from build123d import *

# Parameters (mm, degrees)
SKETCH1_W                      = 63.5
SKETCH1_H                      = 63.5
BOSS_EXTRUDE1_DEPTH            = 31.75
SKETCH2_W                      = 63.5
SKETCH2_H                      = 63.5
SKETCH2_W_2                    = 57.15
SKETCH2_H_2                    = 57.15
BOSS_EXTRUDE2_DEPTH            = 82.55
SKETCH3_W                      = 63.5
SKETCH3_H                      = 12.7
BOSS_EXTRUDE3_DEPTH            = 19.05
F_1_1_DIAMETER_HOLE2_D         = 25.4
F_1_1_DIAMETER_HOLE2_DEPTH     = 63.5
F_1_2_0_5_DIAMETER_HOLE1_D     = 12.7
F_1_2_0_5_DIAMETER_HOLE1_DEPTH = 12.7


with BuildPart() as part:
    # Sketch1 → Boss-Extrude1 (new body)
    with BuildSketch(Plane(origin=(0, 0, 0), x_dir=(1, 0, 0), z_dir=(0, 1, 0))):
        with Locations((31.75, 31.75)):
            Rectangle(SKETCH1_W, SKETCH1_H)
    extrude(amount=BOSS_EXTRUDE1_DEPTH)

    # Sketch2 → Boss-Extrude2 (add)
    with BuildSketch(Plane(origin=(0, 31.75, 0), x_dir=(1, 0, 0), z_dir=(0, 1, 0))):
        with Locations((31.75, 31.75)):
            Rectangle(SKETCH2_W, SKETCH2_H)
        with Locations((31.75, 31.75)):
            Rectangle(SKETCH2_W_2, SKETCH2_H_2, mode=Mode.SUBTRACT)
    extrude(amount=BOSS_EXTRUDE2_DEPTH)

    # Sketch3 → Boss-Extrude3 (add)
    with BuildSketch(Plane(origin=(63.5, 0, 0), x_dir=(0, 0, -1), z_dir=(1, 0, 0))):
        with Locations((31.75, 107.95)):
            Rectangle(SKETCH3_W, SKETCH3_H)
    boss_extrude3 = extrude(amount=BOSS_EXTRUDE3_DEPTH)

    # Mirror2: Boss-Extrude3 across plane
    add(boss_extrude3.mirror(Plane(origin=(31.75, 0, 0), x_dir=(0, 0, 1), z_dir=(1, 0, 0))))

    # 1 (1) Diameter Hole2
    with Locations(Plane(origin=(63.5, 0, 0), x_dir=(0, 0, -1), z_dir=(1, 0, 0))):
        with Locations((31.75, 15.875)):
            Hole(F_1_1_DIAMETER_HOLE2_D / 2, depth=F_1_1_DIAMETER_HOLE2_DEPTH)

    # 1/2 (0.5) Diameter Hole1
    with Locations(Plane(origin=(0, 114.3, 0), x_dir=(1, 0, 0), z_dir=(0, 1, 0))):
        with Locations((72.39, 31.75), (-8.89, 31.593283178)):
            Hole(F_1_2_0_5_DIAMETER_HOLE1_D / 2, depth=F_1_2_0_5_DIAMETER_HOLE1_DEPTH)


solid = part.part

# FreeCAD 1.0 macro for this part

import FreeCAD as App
import Part
import Sketcher
Q = App.Units.Quantity


def add_polygon(sketch, points):
    """Adds a closed chain of lines whose ends are joined by coincident constraints."""
    first, n = sketch.GeometryCount, len(points)
    for a, b in zip(points, points[1:] + points[:1]):
        sketch.addGeometry(Part.LineSegment(App.Vector(*a, 0), App.Vector(*b, 0)), False)
    for i in range(n):
        sketch.addConstraint(Sketcher.Constraint("Coincident", first + i, 2, first + (i + 1) % n, 1))

doc = App.newDocument("Part")
params = doc.addObject("Spreadsheet::Sheet", "Params")
for row, (alias, value) in enumerate([
    ("sketch1_width", "2.5 in"),
    ("pad1_length", "1.25 in"),
    ("sketch2_width", "2.5 in"),
    ("sketch2_width2", "2.25 in"),
    ("pad2_length", "3.25 in"),
    ("sketch3_width", "0.5 in"),
    ("sketch3_height", "2.5 in"),
    ("pad3_length", "0.75 in"),
    ("sketch4_diameter", "1 in"),
    ("hole_diameter", "1 in"),
    ("hole_depth", "2.5 in"),
    ("sketch5_diameter", "0.5 in"),
    ("hole2_diameter", "0.5 in"),
    ("hole2_depth", "0.5 in"),
], start=1):
    params.set(f"A{row}", alias)
    params.set(f"B{row}", "=" + value)
    params.setAlias(f"B{row}", alias)

body = doc.addObject("PartDesign::Body", "Body")

sketch1 = doc.addObject("Sketcher::SketchObject", "Sketch")
body.addObject(sketch1)
sketch1.AttachmentSupport = (doc.XZ_Plane, [""])
sketch1.MapMode = "FlatFace"
add_polygon(sketch1, [(0, -64), (0, 0), (64, 0), (64, -64)])
sketch1.addConstraint([
    Sketcher.Constraint("Vertical", 0),
    Sketcher.Constraint("Horizontal", 1),
    Sketcher.Constraint("Vertical", 2),
    Sketcher.Constraint("Horizontal", 3),
    Sketcher.Constraint("Coincident", 0, 2, -1, 1),
    Sketcher.Constraint("Equal", 3, 0),
    Sketcher.Constraint("DistanceX", 1, 1, 1, 2, Q("2.5 in")),
])
sketch1.setExpression("Constraints[10]", "Params.sketch1_width")
pad1 = doc.addObject("PartDesign::Pad", "Pad")
body.addObject(pad1)
pad1.Profile = sketch1
pad1.setExpression("Length", "Params.pad1_length")
pad1.Reversed = True

sketch2 = doc.addObject("Sketcher::SketchObject", "Sketch001")
body.addObject(sketch2)
sketch2.AttachmentSupport = (doc.XZ_Plane, [""])
sketch2.MapMode = "FlatFace"
sketch2.AttachmentOffset = App.Placement(App.Vector(0, 0, -1.25 * 25.4), App.Rotation())
add_polygon(sketch2, [(0, -64), (0, 0), (64, 0), (64, -64)])
add_polygon(sketch2, [(60, -3), (3, -3), (3, -60), (60, -60)])
sketch2.addConstraint([
    Sketcher.Constraint("Vertical", 0),
    Sketcher.Constraint("Horizontal", 1),
    Sketcher.Constraint("Vertical", 2),
    Sketcher.Constraint("Horizontal", 3),
    Sketcher.Constraint("Horizontal", 4),
    Sketcher.Constraint("Vertical", 5),
    Sketcher.Constraint("Horizontal", 6),
    Sketcher.Constraint("Vertical", 7),
    Sketcher.Constraint("Coincident", 0, 2, -1, 1),
    Sketcher.Constraint("Equal", 3, 0),
    Sketcher.Constraint("Equal", 6, 5),
    Sketcher.Constraint("DistanceX", 1, 1, 1, 2, Q("2.5 in")),
    Sketcher.Constraint("DistanceX", 4, 2, 4, 1, Q("2.25 in")),
    Sketcher.Constraint("DistanceX", -1, 1, 4, 2, Q("0.125 in")),
    Sketcher.Constraint("DistanceY", 4, 2, -1, 1, Q("0.125 in")),
])
sketch2.setExpression("Constraints[19]", "Params.sketch2_width")
sketch2.setExpression("Constraints[20]", "Params.sketch2_width2")
pad2 = doc.addObject("PartDesign::Pad", "Pad001")
body.addObject(pad2)
pad2.Profile = sketch2
pad2.setExpression("Length", "Params.pad2_length")
pad2.Reversed = True

sketch3 = doc.addObject("Sketcher::SketchObject", "Sketch002")
body.addObject(sketch3)
sketch3.AttachmentSupport = (doc.YZ_Plane, [""])
sketch3.MapMode = "FlatFace"
sketch3.AttachmentOffset = App.Placement(App.Vector(0, 0, 2.5 * 25.4), App.Rotation())
add_polygon(sketch3, [(114, 0), (102, 0), (102, -64), (114, -64)])
sketch3.addConstraint([
    Sketcher.Constraint("Horizontal", 0),
    Sketcher.Constraint("Vertical", 1),
    Sketcher.Constraint("Horizontal", 2),
    Sketcher.Constraint("Vertical", 3),
    Sketcher.Constraint("PointOnObject", 0, 2, -1),
    Sketcher.Constraint("DistanceX", 0, 2, 0, 1, Q("0.5 in")),
    Sketcher.Constraint("DistanceY", 1, 2, 1, 1, Q("2.5 in")),
    Sketcher.Constraint("DistanceX", -1, 1, 0, 2, Q("4 in")),
])
sketch3.setExpression("Constraints[9]", "Params.sketch3_width")
sketch3.setExpression("Constraints[10]", "Params.sketch3_height")
pad3 = doc.addObject("PartDesign::Pad", "Pad002")
body.addObject(pad3)
pad3.Profile = sketch3
pad3.setExpression("Length", "Params.pad3_length")
doc.recompute()

datumplane = doc.addObject("PartDesign::Plane", "DatumPlane")
body.addObject(datumplane)
datumplane.AttachmentSupport = (doc.YZ_Plane, [""])
datumplane.MapMode = "FlatFace"
datumplane.AttachmentOffset = App.Placement(App.Vector(0, 0, 1.25 * 25.4), App.Rotation())
mirrored = doc.addObject("PartDesign::Mirrored", "Mirrored")
body.addObject(mirrored)
mirrored.Originals = [pad3]
mirrored.MirrorPlane = (datumplane, [""])
body.Tip = mirrored

sketch4 = doc.addObject("Sketcher::SketchObject", "Sketch003")
body.addObject(sketch4)
sketch4.AttachmentSupport = (doc.YZ_Plane, [""])
sketch4.MapMode = "FlatFace"
sketch4.AttachmentOffset = App.Placement(App.Vector(0, 0, 2.5 * 25.4), App.Rotation())
sketch4.addGeometry(Part.Circle(App.Vector(16, -32, 0), App.Vector(0, 0, 1), 13), False)
sketch4.addConstraint([
    Sketcher.Constraint("Diameter", 0, Q("1 in")),
    Sketcher.Constraint("DistanceY", 0, 3, -1, 1, Q("1.25 in")),
    Sketcher.Constraint("DistanceX", -1, 1, 0, 3, Q("0.625 in")),
])
sketch4.setExpression("Constraints[0]", "Params.sketch4_diameter")
doc.recompute()
hole = doc.addObject("PartDesign::Hole", "Hole")
body.addObject(hole)
hole.Profile = sketch4
hole.ThreadType = "None"
hole.setExpression("Diameter", "Params.hole_diameter")
hole.DepthType = "Dimension"
hole.setExpression("Depth", "Params.hole_depth")
hole.DrillPoint = "Flat"

sketch5 = doc.addObject("Sketcher::SketchObject", "Sketch004")
body.addObject(sketch5)
sketch5.AttachmentSupport = (doc.XZ_Plane, [""])
sketch5.MapMode = "FlatFace"
sketch5.AttachmentOffset = App.Placement(App.Vector(0, 0, -4.5 * 25.4), App.Rotation())
sketch5.addGeometry([
    Part.Circle(App.Vector(72, -32, 0), App.Vector(0, 0, 1), 6),
    Part.Circle(App.Vector(-9, -32, 0), App.Vector(0, 0, 1), 6),
], False)
sketch5.addConstraint([
    Sketcher.Constraint("Equal", 0, 1),
    Sketcher.Constraint("Diameter", 0, Q("0.5 in")),
    Sketcher.Constraint("DistanceX", 1, 3, 0, 3, Q("3.2 in")),
    Sketcher.Constraint("DistanceX", -1, 1, 0, 3, Q("2.85 in")),
    Sketcher.Constraint("DistanceY", 0, 3, -1, 1, Q("1.25 in")),
    Sketcher.Constraint("DistanceY", 1, 3, -1, 1, Q("31.593283 mm")),
])
sketch5.setExpression("Constraints[1]", "Params.sketch5_diameter")
doc.recompute()
hole2 = doc.addObject("PartDesign::Hole", "Hole001")
body.addObject(hole2)
hole2.Profile = sketch5
hole2.ThreadType = "None"
hole2.setExpression("Diameter", "Params.hole2_diameter")
hole2.DepthType = "Dimension"
hole2.setExpression("Depth", "Params.hole2_depth")
hole2.DrillPoint = "Flat"
hole2.Reversed = True

doc.recompute()
